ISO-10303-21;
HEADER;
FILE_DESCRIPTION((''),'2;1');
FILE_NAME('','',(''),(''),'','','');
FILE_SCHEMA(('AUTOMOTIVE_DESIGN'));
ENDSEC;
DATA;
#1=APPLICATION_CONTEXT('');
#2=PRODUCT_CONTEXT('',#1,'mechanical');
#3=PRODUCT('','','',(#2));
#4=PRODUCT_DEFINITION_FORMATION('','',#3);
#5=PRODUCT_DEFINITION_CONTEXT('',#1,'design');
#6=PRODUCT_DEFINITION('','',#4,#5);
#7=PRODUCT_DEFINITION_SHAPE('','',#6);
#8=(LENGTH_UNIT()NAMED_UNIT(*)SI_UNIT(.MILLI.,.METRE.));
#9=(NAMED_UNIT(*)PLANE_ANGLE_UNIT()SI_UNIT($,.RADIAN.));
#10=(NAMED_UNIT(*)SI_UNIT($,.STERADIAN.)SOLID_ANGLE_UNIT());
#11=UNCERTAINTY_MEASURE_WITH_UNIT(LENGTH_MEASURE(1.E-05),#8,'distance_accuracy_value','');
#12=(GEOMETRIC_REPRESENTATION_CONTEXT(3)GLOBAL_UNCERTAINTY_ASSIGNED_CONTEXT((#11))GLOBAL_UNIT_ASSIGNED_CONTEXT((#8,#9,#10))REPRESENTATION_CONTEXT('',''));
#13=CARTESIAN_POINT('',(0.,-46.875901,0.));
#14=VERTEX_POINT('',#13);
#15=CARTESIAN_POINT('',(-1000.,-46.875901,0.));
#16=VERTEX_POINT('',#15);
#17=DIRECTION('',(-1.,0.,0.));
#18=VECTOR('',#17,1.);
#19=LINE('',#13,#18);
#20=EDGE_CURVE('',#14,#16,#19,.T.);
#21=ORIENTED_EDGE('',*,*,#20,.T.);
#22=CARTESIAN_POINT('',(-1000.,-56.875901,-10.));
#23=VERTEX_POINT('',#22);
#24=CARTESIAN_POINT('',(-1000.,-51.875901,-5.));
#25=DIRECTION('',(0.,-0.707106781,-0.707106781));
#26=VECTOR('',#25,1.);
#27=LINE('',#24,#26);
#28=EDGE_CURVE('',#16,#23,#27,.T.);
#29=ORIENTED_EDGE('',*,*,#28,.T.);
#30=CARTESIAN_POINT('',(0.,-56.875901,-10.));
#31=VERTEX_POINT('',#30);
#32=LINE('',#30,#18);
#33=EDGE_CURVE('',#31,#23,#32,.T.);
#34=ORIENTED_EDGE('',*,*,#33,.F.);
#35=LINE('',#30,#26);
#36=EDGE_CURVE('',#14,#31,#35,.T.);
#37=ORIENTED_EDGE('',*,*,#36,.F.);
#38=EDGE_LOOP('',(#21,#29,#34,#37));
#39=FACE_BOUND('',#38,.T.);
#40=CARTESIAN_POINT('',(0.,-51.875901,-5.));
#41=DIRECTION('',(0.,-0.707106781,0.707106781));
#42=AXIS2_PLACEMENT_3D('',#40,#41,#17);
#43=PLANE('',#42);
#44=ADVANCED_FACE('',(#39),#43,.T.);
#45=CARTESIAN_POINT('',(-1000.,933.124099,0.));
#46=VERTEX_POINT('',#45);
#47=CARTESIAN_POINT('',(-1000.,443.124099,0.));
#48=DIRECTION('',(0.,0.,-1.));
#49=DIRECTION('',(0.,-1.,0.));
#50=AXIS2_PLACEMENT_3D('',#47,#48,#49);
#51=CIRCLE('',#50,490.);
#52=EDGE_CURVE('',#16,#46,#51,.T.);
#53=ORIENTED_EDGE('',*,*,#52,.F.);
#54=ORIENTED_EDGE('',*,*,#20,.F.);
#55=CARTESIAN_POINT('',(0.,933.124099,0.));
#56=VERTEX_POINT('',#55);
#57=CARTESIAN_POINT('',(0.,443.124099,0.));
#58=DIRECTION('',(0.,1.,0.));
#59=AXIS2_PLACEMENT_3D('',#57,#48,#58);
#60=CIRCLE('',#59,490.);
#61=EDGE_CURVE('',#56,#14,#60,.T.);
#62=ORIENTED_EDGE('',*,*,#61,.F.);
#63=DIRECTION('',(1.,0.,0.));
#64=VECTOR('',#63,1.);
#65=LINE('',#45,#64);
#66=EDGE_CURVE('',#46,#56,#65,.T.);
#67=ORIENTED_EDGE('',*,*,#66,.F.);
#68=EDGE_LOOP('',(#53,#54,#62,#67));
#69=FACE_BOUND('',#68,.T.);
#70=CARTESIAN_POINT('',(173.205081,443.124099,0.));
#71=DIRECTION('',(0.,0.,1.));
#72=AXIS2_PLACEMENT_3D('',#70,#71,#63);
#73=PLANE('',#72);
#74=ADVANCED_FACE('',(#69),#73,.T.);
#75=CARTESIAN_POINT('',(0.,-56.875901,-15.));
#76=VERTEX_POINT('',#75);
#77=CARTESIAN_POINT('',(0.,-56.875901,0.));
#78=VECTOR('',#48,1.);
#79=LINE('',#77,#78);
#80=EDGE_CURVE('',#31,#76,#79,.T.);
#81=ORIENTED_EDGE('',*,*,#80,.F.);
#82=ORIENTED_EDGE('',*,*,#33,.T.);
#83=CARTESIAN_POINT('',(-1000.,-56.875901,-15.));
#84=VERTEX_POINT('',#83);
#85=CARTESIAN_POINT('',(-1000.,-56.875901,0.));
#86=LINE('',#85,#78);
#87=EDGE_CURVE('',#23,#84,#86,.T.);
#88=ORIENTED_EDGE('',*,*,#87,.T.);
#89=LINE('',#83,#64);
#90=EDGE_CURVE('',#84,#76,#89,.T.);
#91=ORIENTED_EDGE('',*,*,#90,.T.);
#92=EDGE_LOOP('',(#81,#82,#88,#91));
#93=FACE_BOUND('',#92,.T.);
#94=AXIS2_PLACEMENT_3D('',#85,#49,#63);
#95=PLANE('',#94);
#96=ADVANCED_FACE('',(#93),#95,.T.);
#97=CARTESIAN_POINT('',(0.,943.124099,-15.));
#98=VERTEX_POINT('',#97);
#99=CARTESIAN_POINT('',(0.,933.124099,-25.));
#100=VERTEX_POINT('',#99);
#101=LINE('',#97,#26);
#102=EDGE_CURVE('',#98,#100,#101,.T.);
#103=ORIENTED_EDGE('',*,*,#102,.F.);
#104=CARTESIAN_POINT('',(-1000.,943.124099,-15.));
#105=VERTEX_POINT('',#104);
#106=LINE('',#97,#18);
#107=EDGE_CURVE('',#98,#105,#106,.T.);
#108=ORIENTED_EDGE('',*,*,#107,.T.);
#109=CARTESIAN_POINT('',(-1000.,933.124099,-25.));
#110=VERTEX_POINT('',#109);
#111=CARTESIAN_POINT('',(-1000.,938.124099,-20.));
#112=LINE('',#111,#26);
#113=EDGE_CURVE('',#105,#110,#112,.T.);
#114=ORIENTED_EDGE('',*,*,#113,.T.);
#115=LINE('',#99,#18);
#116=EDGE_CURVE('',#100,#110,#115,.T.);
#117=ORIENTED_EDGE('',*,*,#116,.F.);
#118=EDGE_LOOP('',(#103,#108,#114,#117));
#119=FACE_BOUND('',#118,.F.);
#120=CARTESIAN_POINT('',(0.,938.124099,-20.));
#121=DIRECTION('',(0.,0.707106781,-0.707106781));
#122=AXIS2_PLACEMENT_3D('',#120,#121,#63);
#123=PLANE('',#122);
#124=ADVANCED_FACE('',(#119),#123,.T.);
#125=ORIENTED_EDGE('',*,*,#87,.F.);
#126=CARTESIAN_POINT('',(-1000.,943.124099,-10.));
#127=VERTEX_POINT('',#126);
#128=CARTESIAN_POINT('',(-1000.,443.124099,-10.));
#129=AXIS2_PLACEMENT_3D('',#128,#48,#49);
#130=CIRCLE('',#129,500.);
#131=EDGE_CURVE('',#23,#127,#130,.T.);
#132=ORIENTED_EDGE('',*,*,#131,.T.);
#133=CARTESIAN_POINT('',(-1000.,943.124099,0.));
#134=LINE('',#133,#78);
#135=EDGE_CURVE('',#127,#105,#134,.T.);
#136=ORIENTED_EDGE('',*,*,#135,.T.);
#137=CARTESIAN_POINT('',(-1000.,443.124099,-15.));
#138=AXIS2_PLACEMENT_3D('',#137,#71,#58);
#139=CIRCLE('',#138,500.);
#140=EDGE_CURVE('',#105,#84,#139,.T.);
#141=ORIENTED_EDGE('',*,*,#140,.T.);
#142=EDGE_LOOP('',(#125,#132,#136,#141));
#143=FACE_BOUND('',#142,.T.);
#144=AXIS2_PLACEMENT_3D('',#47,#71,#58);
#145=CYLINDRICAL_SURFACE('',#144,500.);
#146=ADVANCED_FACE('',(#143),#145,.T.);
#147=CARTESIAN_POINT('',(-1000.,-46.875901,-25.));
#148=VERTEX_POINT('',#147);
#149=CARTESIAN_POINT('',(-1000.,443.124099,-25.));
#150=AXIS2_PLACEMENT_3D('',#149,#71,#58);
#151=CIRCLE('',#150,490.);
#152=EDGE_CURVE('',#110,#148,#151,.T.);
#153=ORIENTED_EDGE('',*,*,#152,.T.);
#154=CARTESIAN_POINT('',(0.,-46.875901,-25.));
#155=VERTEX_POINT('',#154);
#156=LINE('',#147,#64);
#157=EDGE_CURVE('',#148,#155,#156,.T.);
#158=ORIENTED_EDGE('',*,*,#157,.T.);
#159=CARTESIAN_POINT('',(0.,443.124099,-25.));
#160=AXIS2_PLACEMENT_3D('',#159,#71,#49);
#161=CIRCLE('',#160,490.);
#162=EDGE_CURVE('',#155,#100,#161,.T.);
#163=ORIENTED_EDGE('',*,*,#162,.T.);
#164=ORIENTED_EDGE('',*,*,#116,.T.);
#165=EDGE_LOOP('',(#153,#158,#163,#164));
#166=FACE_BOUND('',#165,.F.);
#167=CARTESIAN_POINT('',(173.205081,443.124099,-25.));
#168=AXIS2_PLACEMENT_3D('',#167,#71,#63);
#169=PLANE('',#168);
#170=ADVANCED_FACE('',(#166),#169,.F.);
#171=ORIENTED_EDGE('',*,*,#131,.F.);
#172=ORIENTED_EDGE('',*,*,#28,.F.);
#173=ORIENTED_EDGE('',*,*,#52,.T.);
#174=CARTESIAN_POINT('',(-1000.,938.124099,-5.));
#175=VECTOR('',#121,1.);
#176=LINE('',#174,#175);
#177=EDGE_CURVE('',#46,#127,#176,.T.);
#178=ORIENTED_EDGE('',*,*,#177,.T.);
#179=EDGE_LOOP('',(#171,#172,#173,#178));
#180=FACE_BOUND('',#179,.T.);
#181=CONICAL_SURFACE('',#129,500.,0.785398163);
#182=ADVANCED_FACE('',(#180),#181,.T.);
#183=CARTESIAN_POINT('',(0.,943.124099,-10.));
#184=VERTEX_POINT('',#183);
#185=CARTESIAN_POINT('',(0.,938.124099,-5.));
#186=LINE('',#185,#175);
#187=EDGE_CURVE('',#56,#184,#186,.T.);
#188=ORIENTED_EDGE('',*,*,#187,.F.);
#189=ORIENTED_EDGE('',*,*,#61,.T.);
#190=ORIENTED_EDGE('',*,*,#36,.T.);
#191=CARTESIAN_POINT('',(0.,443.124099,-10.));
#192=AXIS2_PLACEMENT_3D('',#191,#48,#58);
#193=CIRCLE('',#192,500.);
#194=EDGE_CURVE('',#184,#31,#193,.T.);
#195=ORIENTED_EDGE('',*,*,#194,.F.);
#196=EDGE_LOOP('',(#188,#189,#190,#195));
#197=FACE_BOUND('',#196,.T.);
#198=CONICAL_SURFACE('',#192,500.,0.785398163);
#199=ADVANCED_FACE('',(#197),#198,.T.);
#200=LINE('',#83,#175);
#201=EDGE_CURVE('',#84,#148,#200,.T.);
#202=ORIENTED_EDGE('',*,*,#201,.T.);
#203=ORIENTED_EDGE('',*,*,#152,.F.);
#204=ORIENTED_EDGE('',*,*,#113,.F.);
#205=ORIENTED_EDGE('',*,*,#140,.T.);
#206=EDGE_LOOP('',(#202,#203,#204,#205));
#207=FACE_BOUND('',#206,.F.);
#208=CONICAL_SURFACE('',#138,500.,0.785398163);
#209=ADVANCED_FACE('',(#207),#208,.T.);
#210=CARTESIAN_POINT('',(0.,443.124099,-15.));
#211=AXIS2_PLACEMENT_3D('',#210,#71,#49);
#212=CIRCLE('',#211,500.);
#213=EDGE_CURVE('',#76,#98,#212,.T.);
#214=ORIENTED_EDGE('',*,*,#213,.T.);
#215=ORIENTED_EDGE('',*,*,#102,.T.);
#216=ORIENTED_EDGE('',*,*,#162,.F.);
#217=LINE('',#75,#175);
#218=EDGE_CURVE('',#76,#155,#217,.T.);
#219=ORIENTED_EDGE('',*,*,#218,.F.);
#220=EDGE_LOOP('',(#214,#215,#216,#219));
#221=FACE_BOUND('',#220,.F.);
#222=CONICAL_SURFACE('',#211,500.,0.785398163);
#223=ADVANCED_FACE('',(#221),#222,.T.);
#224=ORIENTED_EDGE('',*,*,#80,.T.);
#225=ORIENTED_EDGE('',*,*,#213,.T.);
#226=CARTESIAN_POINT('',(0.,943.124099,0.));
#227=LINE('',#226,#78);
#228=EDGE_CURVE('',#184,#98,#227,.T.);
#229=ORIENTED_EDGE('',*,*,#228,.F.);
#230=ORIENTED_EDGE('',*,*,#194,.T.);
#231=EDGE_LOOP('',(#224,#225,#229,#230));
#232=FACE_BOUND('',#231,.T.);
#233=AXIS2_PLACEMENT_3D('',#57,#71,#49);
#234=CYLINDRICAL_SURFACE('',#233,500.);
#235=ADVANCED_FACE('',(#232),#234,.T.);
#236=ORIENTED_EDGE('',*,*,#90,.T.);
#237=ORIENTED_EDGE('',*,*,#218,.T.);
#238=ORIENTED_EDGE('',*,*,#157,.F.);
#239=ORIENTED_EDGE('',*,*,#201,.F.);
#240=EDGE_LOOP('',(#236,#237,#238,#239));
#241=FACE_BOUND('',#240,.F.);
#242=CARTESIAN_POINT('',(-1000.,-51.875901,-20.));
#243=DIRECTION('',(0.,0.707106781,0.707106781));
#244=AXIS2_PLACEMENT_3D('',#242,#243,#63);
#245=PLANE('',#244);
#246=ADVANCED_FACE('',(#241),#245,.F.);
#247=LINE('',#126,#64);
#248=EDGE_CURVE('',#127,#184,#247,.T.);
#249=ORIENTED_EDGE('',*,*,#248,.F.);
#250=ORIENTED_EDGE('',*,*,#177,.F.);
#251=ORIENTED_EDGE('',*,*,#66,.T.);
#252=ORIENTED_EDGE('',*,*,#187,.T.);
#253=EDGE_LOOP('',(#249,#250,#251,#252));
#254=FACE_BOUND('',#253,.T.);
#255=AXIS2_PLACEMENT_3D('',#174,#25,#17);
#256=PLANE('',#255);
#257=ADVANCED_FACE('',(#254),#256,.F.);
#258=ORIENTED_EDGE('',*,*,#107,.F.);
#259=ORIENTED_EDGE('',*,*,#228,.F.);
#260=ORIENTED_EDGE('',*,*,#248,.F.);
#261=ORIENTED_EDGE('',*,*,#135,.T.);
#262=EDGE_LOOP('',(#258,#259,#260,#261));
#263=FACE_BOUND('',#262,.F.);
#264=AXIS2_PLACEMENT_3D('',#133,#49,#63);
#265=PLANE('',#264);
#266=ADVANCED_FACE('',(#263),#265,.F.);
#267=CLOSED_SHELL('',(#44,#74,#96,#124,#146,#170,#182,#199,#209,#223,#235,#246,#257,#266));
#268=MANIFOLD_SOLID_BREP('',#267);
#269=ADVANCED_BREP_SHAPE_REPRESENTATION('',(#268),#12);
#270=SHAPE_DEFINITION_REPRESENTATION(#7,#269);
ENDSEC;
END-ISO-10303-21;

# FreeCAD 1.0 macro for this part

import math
import FreeCAD as App
import Part
import Sketcher

V = App.Vector


def edges_at(feature, points):
    """Names of the edges that pass closest to the given points."""
    edges = feature.Shape.Edges
    near = lambda p: min(range(len(edges)), key=lambda i: edges[i].distToShape(Part.Vertex(*p))[0])
    return sorted({f"Edge{near(p) + 1}" for p in points})

doc = App.newDocument("Part")
body = doc.addObject("PartDesign::Body", "Body")

# Sketch on XY plane
sketch1 = body.newObject("Sketcher::SketchObject", "Sketch")
sketch1.AttachmentSupport = (doc.getObject("XY_Plane"), [""])
sketch1.MapMode = "FlatFace"
sketch1.addGeometry([
    Part.ArcOfCircle(Part.Circle(V(0, 443, 0), V(0, 0, 1), 500), math.radians(-90), math.radians(90)),
    Part.LineSegment(V(0, 943, 0), V(-1000, 943, 0)),
    Part.ArcOfCircle(Part.Circle(V(-1000, 443, 0), V(0, 0, 1), 500), math.radians(90), math.radians(270)),
    Part.LineSegment(V(-1000, -57, 0), V(0, -57, 0)),
], False)
sketch1.addConstraint([
    Sketcher.Constraint("Tangent", 0, 2, 1, 1),
    Sketcher.Constraint("Tangent", 1, 2, 2, 1),
    Sketcher.Constraint("Tangent", 2, 2, 3, 1),
    Sketcher.Constraint("Tangent", 3, 2, 0, 1),
    Sketcher.Constraint("Horizontal", 1),
    Sketcher.Constraint("Horizontal", 3),
    Sketcher.Constraint("PointOnObject", 0, 3, -2),
    Sketcher.Constraint("Radius", 0, 500.0),
    Sketcher.Constraint("DistanceX", 1, 2, 1, 1, 1000.0),
    Sketcher.Constraint("DistanceY", -1, 1, 0, 3, 443.124099),
])
pad1 = body.newObject("PartDesign::Pad", "Pad")
pad1.Profile = sketch1
pad1.Length = 25
pad1.Reversed = True
doc.recompute()

chamfer = body.newObject("PartDesign::Chamfer", "Chamfer")
chamfer.Base = (pad1, edges_at(pad1, [
    (500, 443.124, -25),
    (-500, 943.124, -25),
    (-1500, 443.124, -25),
    (-500, -56.876, -25),
]))
chamfer.Size = 10
doc.recompute()

chamfer2 = body.newObject("PartDesign::Chamfer", "Chamfer001")
chamfer2.Base = (chamfer, edges_at(chamfer, [(-500, 943.124, 0)]))
chamfer2.Size = 10

doc.recompute()
